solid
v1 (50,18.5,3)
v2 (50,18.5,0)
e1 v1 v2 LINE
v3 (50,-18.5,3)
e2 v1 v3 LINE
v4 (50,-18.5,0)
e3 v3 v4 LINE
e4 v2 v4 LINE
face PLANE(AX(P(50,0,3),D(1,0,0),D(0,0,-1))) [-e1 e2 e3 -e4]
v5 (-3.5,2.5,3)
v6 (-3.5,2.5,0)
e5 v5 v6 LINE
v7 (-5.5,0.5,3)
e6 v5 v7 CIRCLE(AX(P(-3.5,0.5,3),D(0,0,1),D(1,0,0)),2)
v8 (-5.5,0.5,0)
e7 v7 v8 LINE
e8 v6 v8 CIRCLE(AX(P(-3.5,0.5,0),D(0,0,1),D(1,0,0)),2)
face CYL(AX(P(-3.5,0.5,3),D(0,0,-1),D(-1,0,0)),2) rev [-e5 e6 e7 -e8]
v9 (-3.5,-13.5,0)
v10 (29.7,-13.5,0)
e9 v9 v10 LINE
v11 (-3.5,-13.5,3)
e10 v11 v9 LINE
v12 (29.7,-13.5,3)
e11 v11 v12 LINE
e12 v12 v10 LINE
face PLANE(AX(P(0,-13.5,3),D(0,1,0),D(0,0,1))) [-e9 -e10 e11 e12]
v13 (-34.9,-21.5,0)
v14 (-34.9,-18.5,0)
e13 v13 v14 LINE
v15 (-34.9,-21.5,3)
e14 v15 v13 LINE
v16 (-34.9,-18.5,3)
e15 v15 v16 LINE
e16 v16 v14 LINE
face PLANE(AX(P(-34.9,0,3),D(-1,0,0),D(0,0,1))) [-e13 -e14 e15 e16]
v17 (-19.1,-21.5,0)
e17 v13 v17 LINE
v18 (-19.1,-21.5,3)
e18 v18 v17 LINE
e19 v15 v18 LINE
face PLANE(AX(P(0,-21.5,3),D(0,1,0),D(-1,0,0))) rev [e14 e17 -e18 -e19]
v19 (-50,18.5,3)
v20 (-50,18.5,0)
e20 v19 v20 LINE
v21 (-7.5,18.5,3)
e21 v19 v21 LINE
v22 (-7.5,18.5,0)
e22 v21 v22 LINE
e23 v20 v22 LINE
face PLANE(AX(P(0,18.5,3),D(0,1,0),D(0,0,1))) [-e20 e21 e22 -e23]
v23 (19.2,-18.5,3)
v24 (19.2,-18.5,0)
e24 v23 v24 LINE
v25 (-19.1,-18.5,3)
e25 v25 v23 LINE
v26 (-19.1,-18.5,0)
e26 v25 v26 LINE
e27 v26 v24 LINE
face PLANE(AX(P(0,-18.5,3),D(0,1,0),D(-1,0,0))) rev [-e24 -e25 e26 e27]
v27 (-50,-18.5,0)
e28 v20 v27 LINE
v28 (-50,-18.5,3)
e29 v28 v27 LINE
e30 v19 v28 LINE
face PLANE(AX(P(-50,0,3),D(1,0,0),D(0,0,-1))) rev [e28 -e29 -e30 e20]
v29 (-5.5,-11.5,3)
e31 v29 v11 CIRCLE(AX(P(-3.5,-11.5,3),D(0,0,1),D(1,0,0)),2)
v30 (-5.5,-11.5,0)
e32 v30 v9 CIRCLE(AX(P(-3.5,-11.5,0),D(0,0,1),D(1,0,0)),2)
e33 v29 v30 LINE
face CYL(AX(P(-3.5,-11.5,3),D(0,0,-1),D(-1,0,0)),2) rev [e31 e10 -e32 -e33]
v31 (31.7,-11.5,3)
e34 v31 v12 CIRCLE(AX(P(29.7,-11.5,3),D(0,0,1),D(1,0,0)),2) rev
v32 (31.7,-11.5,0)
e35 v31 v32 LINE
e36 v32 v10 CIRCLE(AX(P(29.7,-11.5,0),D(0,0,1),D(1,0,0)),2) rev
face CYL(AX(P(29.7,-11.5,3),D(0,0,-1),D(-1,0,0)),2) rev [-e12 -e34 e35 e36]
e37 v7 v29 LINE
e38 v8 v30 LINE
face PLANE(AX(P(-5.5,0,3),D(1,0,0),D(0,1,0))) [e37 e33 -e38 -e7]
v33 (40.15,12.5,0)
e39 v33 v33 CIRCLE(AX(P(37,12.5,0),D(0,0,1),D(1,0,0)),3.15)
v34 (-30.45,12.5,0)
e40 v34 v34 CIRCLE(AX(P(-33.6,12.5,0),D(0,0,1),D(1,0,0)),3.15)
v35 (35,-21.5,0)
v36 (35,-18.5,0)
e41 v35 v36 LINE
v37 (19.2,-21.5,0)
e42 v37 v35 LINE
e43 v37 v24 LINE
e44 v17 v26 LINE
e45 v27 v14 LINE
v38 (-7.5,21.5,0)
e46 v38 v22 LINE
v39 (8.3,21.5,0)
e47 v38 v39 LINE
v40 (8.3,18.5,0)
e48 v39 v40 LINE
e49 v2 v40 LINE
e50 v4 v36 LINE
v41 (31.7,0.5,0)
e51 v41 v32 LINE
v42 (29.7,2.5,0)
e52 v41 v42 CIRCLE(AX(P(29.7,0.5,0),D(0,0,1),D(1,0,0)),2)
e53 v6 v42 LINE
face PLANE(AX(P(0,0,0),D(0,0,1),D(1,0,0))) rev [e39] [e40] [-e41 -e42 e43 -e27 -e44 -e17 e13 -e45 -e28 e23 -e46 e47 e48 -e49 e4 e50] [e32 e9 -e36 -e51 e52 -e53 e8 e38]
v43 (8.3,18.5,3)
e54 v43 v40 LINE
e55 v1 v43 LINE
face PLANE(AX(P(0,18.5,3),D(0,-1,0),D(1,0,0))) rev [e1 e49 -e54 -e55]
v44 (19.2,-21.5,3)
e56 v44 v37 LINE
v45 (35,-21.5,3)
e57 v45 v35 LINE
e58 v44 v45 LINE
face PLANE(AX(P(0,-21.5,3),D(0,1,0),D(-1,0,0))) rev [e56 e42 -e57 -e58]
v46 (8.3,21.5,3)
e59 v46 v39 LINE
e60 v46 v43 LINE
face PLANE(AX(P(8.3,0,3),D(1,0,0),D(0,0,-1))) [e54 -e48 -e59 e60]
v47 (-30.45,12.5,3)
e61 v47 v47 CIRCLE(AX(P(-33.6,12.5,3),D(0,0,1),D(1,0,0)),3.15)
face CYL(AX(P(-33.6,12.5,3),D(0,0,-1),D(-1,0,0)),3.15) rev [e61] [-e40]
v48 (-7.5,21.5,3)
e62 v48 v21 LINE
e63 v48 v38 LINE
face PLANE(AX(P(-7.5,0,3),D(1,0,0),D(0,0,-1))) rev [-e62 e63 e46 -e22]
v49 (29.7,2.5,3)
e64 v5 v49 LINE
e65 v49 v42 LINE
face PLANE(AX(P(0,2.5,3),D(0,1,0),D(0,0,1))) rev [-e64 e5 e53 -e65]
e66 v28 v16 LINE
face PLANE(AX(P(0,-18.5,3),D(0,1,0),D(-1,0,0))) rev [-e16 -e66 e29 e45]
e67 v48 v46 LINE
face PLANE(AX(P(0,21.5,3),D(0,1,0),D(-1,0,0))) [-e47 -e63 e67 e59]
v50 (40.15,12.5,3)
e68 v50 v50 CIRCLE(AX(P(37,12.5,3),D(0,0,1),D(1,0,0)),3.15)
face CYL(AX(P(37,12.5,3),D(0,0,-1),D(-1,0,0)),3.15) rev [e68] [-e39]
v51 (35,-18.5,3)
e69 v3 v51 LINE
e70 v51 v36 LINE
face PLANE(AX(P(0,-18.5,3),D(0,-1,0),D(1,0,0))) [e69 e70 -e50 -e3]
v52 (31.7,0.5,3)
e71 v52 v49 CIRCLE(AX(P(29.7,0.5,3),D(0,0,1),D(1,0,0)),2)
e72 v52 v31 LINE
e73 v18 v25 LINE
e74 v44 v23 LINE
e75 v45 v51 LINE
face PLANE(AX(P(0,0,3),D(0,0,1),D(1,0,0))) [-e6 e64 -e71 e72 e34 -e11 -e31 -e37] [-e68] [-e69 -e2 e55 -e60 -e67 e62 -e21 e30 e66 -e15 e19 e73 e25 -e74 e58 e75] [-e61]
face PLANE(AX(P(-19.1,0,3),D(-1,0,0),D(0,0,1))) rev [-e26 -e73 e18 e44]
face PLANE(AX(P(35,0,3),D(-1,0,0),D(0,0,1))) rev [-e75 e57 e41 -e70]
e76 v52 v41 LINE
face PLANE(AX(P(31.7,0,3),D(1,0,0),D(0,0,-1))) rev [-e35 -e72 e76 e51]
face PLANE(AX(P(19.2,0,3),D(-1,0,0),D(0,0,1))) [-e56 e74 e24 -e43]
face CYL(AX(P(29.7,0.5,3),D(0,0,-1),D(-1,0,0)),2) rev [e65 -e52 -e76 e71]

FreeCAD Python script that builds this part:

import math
import FreeCAD as App
import Part
import Sketcher
from FreeCAD import Vector

doc = App.newDocument("Part")
body = doc.addObject("PartDesign::Body", "Body")

# Sketch on XY plane
sketch1 = body.newObject("Sketcher::SketchObject", "Sketch")
sketch1.AttachmentSupport = (doc.getObject("XY_Plane"), [""])
sketch1.MapMode = "FlatFace"
sketch1.addGeometry([
    Part.LineSegment(Vector(8.3, 21.5, 0), Vector(-7.5, 21.5, 0)),  # 0
    Part.LineSegment(Vector(-7.5, 21.5, 0), Vector(-7.5, 18.5, 0)),  # 1
    Part.LineSegment(Vector(-7.5, 18.5, 0), Vector(-50, 18.5, 0)),  # 2
    Part.LineSegment(Vector(-50, 18.5, 0), Vector(-50, -18.5, 0)),  # 3
    Part.LineSegment(Vector(-50, -18.5, 0), Vector(-34.9, -18.5, 0)),  # 4
    Part.LineSegment(Vector(-34.9, -18.5, 0), Vector(-34.9, -21.5, 0)),  # 5
    Part.LineSegment(Vector(-34.9, -21.5, 0), Vector(-19.1, -21.5, 0)),  # 6
    Part.LineSegment(Vector(-19.1, -21.5, 0), Vector(-19.1, -18.5, 0)),  # 7
    Part.LineSegment(Vector(-19.1, -18.5, 0), Vector(19.2, -18.5, 0)),  # 8
    Part.LineSegment(Vector(19.2, -18.5, 0), Vector(19.2, -21.5, 0)),  # 9
    Part.LineSegment(Vector(19.2, -21.5, 0), Vector(35, -21.5, 0)),  # 10
    Part.LineSegment(Vector(35, -21.5, 0), Vector(35, -18.5, 0)),  # 11
    Part.LineSegment(Vector(35, -18.5, 0), Vector(50, -18.5, 0)),  # 12
    Part.LineSegment(Vector(50, -18.5, 0), Vector(50, 18.5, 0)),  # 13
    Part.LineSegment(Vector(50, 18.5, 0), Vector(8.3, 18.5, 0)),  # 14
    Part.LineSegment(Vector(8.3, 18.5, 0), Vector(8.3, 21.5, 0)),  # 15
    Part.LineSegment(Vector(-5.5, -11.5, 0), Vector(-5.5, 0.5, 0)),  # 16
    Part.ArcOfCircle(Part.Circle(Vector(-3.5, 0.5, 0), Vector(0, 0, 1), 2), math.radians(90), math.radians(180)),  # 17
    Part.LineSegment(Vector(-3.5, 2.5, 0), Vector(29.7, 2.5, 0)),  # 18
    Part.ArcOfCircle(Part.Circle(Vector(29.7, 0.5, 0), Vector(0, 0, 1), 2), math.radians(0), math.radians(90)),  # 19
    Part.LineSegment(Vector(31.7, 0.5, 0), Vector(31.7, -11.5, 0)),  # 20
    Part.ArcOfCircle(Part.Circle(Vector(29.7, -11.5, 0), Vector(0, 0, 1), 2), math.radians(-90), math.radians(0)),  # 21
    Part.LineSegment(Vector(29.7, -13.5, 0), Vector(-3.5, -13.5, 0)),  # 22
    Part.ArcOfCircle(Part.Circle(Vector(-3.5, -11.5, 0), Vector(0, 0, 1), 2), math.radians(-180), math.radians(-90)),  # 23
    Part.Circle(Vector(-33.6, 12.5, 0), Vector(0, 0, 1), 3.1),  # 24
    Part.Circle(Vector(37, 12.5, 0), Vector(0, 0, 1), 3.1),  # 25
], False)
sketch1.addConstraint([
    Sketcher.Constraint("Coincident", 0, 2, 1, 1),
    Sketcher.Constraint("Coincident", 1, 2, 2, 1),
    Sketcher.Constraint("Coincident", 2, 2, 3, 1),
    Sketcher.Constraint("Coincident", 3, 2, 4, 1),
    Sketcher.Constraint("Coincident", 4, 2, 5, 1),
    Sketcher.Constraint("Coincident", 5, 2, 6, 1),
    Sketcher.Constraint("Coincident", 6, 2, 7, 1),
    Sketcher.Constraint("Coincident", 7, 2, 8, 1),
    Sketcher.Constraint("Coincident", 8, 2, 9, 1),
    Sketcher.Constraint("Coincident", 9, 2, 10, 1),
    Sketcher.Constraint("Coincident", 10, 2, 11, 1),
    Sketcher.Constraint("Coincident", 11, 2, 12, 1),
    Sketcher.Constraint("Coincident", 12, 2, 13, 1),
    Sketcher.Constraint("Coincident", 13, 2, 14, 1),
    Sketcher.Constraint("Coincident", 14, 2, 15, 1),
    Sketcher.Constraint("Coincident", 15, 2, 0, 1),
    Sketcher.Constraint("Tangent", 16, 2, 17, 2),
    Sketcher.Constraint("Tangent", 17, 1, 18, 1),
    Sketcher.Constraint("Tangent", 18, 2, 19, 2),
    Sketcher.Constraint("Tangent", 19, 1, 20, 1),
    Sketcher.Constraint("Tangent", 20, 2, 21, 2),
    Sketcher.Constraint("Tangent", 21, 1, 22, 1),
    Sketcher.Constraint("Tangent", 22, 2, 23, 2),
    Sketcher.Constraint("Tangent", 23, 1, 16, 1),
    Sketcher.Constraint("Horizontal", 0),
    Sketcher.Constraint("Vertical", 1),
    Sketcher.Constraint("Horizontal", 2),
    Sketcher.Constraint("Vertical", 3),
    Sketcher.Constraint("Horizontal", 4),
    Sketcher.Constraint("Vertical", 5),
    Sketcher.Constraint("Horizontal", 6),
    Sketcher.Constraint("Vertical", 7),
    Sketcher.Constraint("Horizontal", 8),
    Sketcher.Constraint("Vertical", 9),
    Sketcher.Constraint("Horizontal", 10),
    Sketcher.Constraint("Vertical", 11),
    Sketcher.Constraint("Horizontal", 12),
    Sketcher.Constraint("Vertical", 13),
    Sketcher.Constraint("Horizontal", 14),
    Sketcher.Constraint("Vertical", 15),
    Sketcher.Constraint("Vertical", 16),
    Sketcher.Constraint("Horizontal", 18),
    Sketcher.Constraint("Vertical", 20),
    Sketcher.Constraint("Horizontal", 22),
    Sketcher.Constraint("Equal", 17, 19),
    Sketcher.Constraint("Equal", 19, 21),
    Sketcher.Constraint("Equal", 21, 23),
    Sketcher.Constraint("Equal", 24, 25),
    Sketcher.Constraint("Symmetric", 2, 2, 12, 2, -1, 1),
    Sketcher.Constraint("Horizontal", 24, 3, 25, 3),
    Sketcher.Constraint("Horizontal", 4, 2, 7, 2),
    Sketcher.Constraint("Horizontal", 6, 2, 9, 2),
    Sketcher.Constraint("Horizontal", 8, 2, 11, 2),
    Sketcher.Constraint("Horizontal", 2, 2, 13, 2),
    Sketcher.Constraint("Equal", 0, 6),
    Sketcher.Constraint("Equal", 6, 10),
    Sketcher.Constraint("Equal", 1, 5),
    Sketcher.Constraint("Radius", 17, 2.0),
    Sketcher.Constraint("Diameter", 24, 6.3),
    Sketcher.Constraint("DistanceX", 12, 1, 12, 2, 15.0),
    Sketcher.Constraint("DistanceY", 1, 2, 1, 1, 3.0),
    Sketcher.Constraint("DistanceY", 3, 2, 3, 1, 37.0),
    Sketcher.Constraint("DistanceY", 16, 1, 16, 2, 12.0),
    Sketcher.Constraint("DistanceX", 0, 2, 0, 1, 15.8),
    Sketcher.Constraint("DistanceX", 2, 2, 2, 1, 42.5),
    Sketcher.Constraint("DistanceX", 4, 1, 4, 2, 15.1),
    Sketcher.Constraint("DistanceX", 8, 1, 8, 2, 38.3),
    Sketcher.Constraint("DistanceX", 18, 1, 18, 2, 33.2),
    Sketcher.Constraint("DistanceX", -1, 1, 25, 3, 37.0),
    Sketcher.Constraint("DistanceY", 17, 3, 24, 3, 12.0),
    Sketcher.Constraint("DistanceX", 0, 2, 17, 3, 4.0),
    Sketcher.Constraint("DistanceY", 17, 3, 0, 2, 21.0),
    Sketcher.Constraint("DistanceX", 24, 3, -1, 1, 33.6),
])
pad1 = body.newObject("PartDesign::Pad", "Pad")
pad1.Profile = sketch1
pad1.Length = 3

doc.recompute()
